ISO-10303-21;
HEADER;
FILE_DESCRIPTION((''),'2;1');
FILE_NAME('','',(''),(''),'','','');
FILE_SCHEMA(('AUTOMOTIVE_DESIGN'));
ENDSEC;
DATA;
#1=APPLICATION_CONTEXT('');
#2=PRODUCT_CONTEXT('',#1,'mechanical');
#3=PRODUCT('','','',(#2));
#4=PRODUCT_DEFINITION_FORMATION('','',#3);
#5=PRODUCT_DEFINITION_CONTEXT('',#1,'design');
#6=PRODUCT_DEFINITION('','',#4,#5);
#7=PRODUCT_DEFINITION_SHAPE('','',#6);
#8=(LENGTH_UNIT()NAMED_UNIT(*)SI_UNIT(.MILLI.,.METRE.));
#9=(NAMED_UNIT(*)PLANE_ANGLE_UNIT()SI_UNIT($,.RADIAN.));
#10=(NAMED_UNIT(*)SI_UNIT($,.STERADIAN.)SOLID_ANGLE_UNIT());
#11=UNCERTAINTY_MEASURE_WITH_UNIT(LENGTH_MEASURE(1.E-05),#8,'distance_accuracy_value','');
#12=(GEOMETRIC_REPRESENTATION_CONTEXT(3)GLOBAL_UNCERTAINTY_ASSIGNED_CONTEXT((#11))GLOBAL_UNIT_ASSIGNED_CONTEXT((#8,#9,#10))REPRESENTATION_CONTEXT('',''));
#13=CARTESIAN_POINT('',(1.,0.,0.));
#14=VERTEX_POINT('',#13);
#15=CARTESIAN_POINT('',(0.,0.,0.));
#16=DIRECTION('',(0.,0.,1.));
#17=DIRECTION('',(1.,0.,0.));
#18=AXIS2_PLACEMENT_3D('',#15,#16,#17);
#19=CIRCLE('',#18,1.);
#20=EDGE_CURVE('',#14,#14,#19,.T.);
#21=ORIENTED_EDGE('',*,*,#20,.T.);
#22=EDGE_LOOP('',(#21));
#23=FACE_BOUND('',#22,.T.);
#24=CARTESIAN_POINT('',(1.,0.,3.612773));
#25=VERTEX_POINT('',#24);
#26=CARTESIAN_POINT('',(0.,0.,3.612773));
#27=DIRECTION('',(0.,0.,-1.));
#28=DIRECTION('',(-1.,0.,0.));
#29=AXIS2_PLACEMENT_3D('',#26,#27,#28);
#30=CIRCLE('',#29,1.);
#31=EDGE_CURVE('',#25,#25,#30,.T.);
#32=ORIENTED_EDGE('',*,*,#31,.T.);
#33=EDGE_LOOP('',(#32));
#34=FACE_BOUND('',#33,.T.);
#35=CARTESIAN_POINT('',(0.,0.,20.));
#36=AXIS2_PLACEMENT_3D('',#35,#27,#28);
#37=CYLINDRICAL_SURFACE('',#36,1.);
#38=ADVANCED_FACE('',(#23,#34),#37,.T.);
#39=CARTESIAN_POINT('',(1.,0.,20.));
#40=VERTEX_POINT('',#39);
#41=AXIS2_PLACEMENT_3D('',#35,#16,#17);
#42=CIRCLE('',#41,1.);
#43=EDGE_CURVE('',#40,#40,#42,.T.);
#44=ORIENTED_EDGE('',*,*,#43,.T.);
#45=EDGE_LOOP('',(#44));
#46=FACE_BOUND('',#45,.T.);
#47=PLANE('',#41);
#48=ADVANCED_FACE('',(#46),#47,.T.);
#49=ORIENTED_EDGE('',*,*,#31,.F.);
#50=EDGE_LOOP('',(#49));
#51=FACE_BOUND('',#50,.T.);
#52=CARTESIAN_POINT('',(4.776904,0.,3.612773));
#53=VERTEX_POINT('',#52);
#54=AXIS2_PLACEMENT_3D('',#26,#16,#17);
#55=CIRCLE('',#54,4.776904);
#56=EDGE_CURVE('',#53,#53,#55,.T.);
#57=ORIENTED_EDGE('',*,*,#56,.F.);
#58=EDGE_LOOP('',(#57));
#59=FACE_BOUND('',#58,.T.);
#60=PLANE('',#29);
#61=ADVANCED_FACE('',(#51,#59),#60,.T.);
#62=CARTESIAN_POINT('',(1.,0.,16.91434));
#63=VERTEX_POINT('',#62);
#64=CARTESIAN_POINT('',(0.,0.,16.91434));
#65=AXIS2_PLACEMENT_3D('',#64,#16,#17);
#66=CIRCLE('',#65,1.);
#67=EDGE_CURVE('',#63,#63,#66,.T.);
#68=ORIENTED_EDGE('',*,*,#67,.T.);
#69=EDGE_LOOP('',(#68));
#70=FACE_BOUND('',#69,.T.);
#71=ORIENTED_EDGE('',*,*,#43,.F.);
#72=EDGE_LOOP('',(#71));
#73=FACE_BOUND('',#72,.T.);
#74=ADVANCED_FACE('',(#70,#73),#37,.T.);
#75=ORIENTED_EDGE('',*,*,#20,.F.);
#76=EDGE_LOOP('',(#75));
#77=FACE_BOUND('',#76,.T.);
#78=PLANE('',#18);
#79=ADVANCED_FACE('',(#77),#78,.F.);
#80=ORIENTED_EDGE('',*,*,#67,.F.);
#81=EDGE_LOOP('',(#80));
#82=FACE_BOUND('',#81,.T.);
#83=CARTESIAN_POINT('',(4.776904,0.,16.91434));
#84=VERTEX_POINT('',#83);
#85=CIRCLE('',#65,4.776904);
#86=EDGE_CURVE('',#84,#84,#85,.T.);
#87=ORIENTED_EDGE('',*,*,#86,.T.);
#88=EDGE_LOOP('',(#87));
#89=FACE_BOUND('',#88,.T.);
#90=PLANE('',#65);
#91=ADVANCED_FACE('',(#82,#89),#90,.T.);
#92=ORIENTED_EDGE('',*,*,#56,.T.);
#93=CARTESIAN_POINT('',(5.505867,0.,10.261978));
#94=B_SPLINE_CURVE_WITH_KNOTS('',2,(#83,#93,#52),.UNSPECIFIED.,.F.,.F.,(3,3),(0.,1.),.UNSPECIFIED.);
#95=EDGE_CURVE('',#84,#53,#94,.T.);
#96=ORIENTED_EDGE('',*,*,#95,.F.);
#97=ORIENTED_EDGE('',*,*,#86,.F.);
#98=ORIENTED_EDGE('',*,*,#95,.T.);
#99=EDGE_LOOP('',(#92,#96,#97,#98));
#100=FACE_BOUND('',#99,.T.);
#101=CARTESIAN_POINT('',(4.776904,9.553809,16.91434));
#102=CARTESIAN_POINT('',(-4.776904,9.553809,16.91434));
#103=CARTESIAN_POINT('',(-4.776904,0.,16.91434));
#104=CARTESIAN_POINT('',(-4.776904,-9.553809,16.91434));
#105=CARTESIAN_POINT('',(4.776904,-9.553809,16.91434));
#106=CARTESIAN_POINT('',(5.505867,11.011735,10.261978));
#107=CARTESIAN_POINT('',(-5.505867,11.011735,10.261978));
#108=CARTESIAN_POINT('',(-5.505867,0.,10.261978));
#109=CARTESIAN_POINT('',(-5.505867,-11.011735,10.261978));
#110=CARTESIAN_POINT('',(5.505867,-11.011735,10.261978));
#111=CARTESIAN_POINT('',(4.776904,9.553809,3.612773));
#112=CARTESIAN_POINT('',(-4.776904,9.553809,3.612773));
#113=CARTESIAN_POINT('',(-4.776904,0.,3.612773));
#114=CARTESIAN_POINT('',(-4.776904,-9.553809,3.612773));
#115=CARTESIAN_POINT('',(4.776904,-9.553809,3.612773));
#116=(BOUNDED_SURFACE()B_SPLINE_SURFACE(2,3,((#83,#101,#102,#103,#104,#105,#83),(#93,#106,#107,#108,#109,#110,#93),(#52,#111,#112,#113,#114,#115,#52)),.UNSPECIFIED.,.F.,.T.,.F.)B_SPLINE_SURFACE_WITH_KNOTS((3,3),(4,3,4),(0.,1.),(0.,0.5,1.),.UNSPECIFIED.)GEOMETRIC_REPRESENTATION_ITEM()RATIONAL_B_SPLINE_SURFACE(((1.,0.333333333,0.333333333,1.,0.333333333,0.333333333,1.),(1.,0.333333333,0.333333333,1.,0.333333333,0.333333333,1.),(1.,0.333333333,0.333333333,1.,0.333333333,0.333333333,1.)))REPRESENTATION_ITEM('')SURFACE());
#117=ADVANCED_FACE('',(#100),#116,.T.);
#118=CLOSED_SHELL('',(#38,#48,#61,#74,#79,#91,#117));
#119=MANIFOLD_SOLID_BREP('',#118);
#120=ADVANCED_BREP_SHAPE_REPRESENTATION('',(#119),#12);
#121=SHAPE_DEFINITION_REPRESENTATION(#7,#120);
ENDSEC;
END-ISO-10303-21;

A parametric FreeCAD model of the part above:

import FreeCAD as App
import Part
import Sketcher

V = App.Vector
Q = App.Units.Quantity

doc = App.newDocument("Part")
body = doc.addObject("PartDesign::Body", "Body")

sketch1 = body.newObject("Sketcher::SketchObject", "Sketch")
sketch1.AttachmentSupport = (doc.getObject("XY_Plane"), [""])
sketch1.MapMode = "FlatFace"
sketch1.addGeometry(Part.Circle(V(0, 0, 0), V(0, 0, 1), 1), False)
sketch1.addConstraint([
    Sketcher.Constraint("Coincident", 0, 3, -1, 1),
    Sketcher.Constraint("Diameter", 0, Q("2 mm")),
])
pad1 = body.newObject("PartDesign::Pad", "Pad")
pad1.Profile = sketch1
pad1.Length = 20

sketch2 = body.newObject("Sketcher::SketchObject", "Sketch001")
sketch2.AttachmentSupport = (doc.getObject("XZ_Plane"), [""])
sketch2.MapMode = "FlatFace"
sketch2.addGeometry([
    Part.LineSegment(V(4.776904, 3.612773, 0), V(0, 3.612773, 0)),
    Part.LineSegment(V(0, 3.612773, 0), V(0, 16.91434, 0)),
    Part.LineSegment(V(0, 16.91434, 0), V(4.776904, 16.91434, 0)),
    Part.BSplineCurve([V(4.776904, 3.612773, 0), V(5.505867, 10.261978, 0), V(4.776904, 16.91434, 0)], [3, 3], [0, 1], False, 2, [1, 1, 1], False),
], False)
sketch2.addConstraint([
    Sketcher.Constraint("Block", 3),
    Sketcher.Constraint("Coincident", 0, 2, 1, 1),
    Sketcher.Constraint("Coincident", 1, 2, 2, 1),
    Sketcher.Constraint("Coincident", 2, 2, 3, 2),
    Sketcher.Constraint("Coincident", 3, 1, 0, 1),
    Sketcher.Constraint("Horizontal", 0),
    Sketcher.Constraint("Vertical", 1),
    Sketcher.Constraint("Horizontal", 2),
    Sketcher.Constraint("PointOnObject", 0, 2, -2),
])

sketch3 = body.newObject("Sketcher::SketchObject", "Sketch002")
sketch3.AttachmentSupport = (doc.getObject("XY_Plane"), [""])
sketch3.MapMode = "FlatFace"
sketch3.AttachmentOffset = App.Placement(V(0, 0, 10), App.Rotation())
sketch3.addGeometry(Part.Circle(V(0, 0, 0), V(0, 0, 1), 0.8), False)
sketch3.addConstraint([
    Sketcher.Constraint("Coincident", 0, 3, -1, 1),
    Sketcher.Constraint("Diameter", 0, Q("1.503258 mm")),
])
doc.recompute()

additivepipe = body.newObject("PartDesign::AdditivePipe", "AdditivePipe")
additivepipe.Profile = sketch2
additivepipe.Spine = (sketch3, ["Edge1"])

doc.recompute()
